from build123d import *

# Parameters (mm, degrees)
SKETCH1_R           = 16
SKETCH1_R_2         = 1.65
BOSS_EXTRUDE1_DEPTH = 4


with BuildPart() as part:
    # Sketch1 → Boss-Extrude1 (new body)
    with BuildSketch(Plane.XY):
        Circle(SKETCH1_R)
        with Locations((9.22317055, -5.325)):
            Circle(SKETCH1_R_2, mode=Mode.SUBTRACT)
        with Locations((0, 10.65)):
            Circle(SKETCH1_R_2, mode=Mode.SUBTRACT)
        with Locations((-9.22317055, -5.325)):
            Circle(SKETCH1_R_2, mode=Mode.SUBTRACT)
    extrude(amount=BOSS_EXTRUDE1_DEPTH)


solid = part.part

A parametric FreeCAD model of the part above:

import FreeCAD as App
import Part
import Sketcher
Q = App.Units.Quantity

doc = App.newDocument("Part")
body = doc.addObject("PartDesign::Body", "Body")

# Sketch on XY plane
sketch1 = doc.addObject("Sketcher::SketchObject", "Sketch")
body.addObject(sketch1)
sketch1.AttachmentSupport = (doc.XY_Plane, [""])
sketch1.MapMode = "FlatFace"
sketch1.addGeometry([
    Part.Circle(App.Vector(0, 0, 0), App.Vector(0, 0, 1), 16),
    Part.Circle(App.Vector(-9.2, -5.3, 0), App.Vector(0, 0, 1), 1.6),
    Part.Circle(App.Vector(9.2, -5.3, 0), App.Vector(0, 0, 1), 1.6),
    Part.Circle(App.Vector(0, 10.7, 0), App.Vector(0, 0, 1), 1.6),
], False)
sketch1.addConstraint([
    Sketcher.Constraint("Coincident", 0, 3, -1, 1),
    Sketcher.Constraint("Equal", 1, 2),
    Sketcher.Constraint("Equal", 2, 3),
    Sketcher.Constraint("Symmetric", 1, 3, 2, 3, -2),
    Sketcher.Constraint("PointOnObject", 3, 3, -2),
    Sketcher.Constraint("Diameter", 0, Q("32 mm")),
    Sketcher.Constraint("Diameter", 1, Q("3.3 mm")),
    Sketcher.Constraint("DistanceY", -1, 1, 3, 3, Q("10.65 mm")),
    Sketcher.Constraint("DistanceY", 1, 3, -1, 1, Q("5.325 mm")),
    Sketcher.Constraint("DistanceX", 1, 3, -1, 1, Q("9.223171 mm")),
])
pad1 = doc.addObject("PartDesign::Pad", "Pad")
body.addObject(pad1)
pad1.Profile = sketch1
pad1.Length = 4

doc.recompute()
